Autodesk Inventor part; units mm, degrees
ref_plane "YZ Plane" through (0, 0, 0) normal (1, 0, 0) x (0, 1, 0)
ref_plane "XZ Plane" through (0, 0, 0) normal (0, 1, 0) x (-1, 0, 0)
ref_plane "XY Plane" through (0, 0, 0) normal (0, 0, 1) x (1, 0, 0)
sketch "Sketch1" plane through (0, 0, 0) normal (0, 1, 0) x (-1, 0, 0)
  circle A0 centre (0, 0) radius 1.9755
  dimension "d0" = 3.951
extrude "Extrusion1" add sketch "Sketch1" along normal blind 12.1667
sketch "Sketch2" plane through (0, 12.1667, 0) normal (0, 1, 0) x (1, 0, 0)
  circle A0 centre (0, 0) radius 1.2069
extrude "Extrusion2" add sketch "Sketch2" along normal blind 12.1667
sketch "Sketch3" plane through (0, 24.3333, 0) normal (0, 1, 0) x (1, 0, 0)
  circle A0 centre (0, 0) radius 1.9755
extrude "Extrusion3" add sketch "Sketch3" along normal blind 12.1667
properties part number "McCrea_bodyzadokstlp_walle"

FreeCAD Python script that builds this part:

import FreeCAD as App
import Part
import Sketcher

doc = App.newDocument("Part")
params = doc.addObject("Spreadsheet::Sheet", "Params")
for row, (alias, value) in enumerate([
    ("pad1_length", "0.4790039 in"),
    ("pad2_length", "0.4790039 in"),
    ("pad3_length", "0.4790039 in"),
], start=1):
    params.set(f"A{row}", alias)
    params.set(f"B{row}", "=" + value)
    params.setAlias(f"B{row}", alias)

body = doc.addObject("PartDesign::Body", "Body")

# Sketch on XZ plane
sketch1 = doc.addObject("Sketcher::SketchObject", "Sketch")
body.addObject(sketch1)
sketch1.AttachmentSupport = (doc.XZ_Plane, [""])
sketch1.MapMode = "FlatFace"
sketch1.addGeometry(Part.Circle(App.Vector(0, 0, 0), App.Vector(0, 0, 1), 2), False)
sketch1.addConstraint(Sketcher.Constraint("Coincident", 0, 3, -1, 1))
sketch1.addConstraint(Sketcher.Constraint("Diameter", 0, 3.951))
pad1 = doc.addObject("PartDesign::Pad", "Pad")
body.addObject(pad1)
pad1.Profile = sketch1
pad1.setExpression("Length", "Params.pad1_length")
pad1.Reversed = True

# Sketch on XZ plane
sketch2 = doc.addObject("Sketcher::SketchObject", "Sketch001")
body.addObject(sketch2)
sketch2.AttachmentSupport = (doc.XZ_Plane, [""])
sketch2.MapMode = "FlatFace"
sketch2.AttachmentOffset = App.Placement(App.Vector(0, 0, -0.4790039 * 25.4), App.Rotation())
sketch2.addGeometry(Part.Circle(App.Vector(0, 0, 0), App.Vector(0, 0, 1), 1.2), False)
sketch2.addConstraint(Sketcher.Constraint("Coincident", 0, 3, -1, 1))
sketch2.addConstraint(Sketcher.Constraint("Diameter", 0, 2.4138))
pad2 = doc.addObject("PartDesign::Pad", "Pad001")
body.addObject(pad2)
pad2.Profile = sketch2
pad2.setExpression("Length", "Params.pad2_length")
pad2.Reversed = True

# Sketch on XZ plane
sketch3 = doc.addObject("Sketcher::SketchObject", "Sketch002")
body.addObject(sketch3)
sketch3.AttachmentSupport = (doc.XZ_Plane, [""])
sketch3.MapMode = "FlatFace"
sketch3.AttachmentOffset = App.Placement(App.Vector(0, 0, -0.9580039 * 25.4), App.Rotation())
sketch3.addGeometry(Part.Circle(App.Vector(0, 0, 0), App.Vector(0, 0, 1), 2), False)
sketch3.addConstraint(Sketcher.Constraint("Coincident", 0, 3, -1, 1))
sketch3.addConstraint(Sketcher.Constraint("Diameter", 0, 3.951))
pad3 = doc.addObject("PartDesign::Pad", "Pad002")
body.addObject(pad3)
pad3.Profile = sketch3
pad3.setExpression("Length", "Params.pad3_length")
pad3.Reversed = True

doc.recompute()
